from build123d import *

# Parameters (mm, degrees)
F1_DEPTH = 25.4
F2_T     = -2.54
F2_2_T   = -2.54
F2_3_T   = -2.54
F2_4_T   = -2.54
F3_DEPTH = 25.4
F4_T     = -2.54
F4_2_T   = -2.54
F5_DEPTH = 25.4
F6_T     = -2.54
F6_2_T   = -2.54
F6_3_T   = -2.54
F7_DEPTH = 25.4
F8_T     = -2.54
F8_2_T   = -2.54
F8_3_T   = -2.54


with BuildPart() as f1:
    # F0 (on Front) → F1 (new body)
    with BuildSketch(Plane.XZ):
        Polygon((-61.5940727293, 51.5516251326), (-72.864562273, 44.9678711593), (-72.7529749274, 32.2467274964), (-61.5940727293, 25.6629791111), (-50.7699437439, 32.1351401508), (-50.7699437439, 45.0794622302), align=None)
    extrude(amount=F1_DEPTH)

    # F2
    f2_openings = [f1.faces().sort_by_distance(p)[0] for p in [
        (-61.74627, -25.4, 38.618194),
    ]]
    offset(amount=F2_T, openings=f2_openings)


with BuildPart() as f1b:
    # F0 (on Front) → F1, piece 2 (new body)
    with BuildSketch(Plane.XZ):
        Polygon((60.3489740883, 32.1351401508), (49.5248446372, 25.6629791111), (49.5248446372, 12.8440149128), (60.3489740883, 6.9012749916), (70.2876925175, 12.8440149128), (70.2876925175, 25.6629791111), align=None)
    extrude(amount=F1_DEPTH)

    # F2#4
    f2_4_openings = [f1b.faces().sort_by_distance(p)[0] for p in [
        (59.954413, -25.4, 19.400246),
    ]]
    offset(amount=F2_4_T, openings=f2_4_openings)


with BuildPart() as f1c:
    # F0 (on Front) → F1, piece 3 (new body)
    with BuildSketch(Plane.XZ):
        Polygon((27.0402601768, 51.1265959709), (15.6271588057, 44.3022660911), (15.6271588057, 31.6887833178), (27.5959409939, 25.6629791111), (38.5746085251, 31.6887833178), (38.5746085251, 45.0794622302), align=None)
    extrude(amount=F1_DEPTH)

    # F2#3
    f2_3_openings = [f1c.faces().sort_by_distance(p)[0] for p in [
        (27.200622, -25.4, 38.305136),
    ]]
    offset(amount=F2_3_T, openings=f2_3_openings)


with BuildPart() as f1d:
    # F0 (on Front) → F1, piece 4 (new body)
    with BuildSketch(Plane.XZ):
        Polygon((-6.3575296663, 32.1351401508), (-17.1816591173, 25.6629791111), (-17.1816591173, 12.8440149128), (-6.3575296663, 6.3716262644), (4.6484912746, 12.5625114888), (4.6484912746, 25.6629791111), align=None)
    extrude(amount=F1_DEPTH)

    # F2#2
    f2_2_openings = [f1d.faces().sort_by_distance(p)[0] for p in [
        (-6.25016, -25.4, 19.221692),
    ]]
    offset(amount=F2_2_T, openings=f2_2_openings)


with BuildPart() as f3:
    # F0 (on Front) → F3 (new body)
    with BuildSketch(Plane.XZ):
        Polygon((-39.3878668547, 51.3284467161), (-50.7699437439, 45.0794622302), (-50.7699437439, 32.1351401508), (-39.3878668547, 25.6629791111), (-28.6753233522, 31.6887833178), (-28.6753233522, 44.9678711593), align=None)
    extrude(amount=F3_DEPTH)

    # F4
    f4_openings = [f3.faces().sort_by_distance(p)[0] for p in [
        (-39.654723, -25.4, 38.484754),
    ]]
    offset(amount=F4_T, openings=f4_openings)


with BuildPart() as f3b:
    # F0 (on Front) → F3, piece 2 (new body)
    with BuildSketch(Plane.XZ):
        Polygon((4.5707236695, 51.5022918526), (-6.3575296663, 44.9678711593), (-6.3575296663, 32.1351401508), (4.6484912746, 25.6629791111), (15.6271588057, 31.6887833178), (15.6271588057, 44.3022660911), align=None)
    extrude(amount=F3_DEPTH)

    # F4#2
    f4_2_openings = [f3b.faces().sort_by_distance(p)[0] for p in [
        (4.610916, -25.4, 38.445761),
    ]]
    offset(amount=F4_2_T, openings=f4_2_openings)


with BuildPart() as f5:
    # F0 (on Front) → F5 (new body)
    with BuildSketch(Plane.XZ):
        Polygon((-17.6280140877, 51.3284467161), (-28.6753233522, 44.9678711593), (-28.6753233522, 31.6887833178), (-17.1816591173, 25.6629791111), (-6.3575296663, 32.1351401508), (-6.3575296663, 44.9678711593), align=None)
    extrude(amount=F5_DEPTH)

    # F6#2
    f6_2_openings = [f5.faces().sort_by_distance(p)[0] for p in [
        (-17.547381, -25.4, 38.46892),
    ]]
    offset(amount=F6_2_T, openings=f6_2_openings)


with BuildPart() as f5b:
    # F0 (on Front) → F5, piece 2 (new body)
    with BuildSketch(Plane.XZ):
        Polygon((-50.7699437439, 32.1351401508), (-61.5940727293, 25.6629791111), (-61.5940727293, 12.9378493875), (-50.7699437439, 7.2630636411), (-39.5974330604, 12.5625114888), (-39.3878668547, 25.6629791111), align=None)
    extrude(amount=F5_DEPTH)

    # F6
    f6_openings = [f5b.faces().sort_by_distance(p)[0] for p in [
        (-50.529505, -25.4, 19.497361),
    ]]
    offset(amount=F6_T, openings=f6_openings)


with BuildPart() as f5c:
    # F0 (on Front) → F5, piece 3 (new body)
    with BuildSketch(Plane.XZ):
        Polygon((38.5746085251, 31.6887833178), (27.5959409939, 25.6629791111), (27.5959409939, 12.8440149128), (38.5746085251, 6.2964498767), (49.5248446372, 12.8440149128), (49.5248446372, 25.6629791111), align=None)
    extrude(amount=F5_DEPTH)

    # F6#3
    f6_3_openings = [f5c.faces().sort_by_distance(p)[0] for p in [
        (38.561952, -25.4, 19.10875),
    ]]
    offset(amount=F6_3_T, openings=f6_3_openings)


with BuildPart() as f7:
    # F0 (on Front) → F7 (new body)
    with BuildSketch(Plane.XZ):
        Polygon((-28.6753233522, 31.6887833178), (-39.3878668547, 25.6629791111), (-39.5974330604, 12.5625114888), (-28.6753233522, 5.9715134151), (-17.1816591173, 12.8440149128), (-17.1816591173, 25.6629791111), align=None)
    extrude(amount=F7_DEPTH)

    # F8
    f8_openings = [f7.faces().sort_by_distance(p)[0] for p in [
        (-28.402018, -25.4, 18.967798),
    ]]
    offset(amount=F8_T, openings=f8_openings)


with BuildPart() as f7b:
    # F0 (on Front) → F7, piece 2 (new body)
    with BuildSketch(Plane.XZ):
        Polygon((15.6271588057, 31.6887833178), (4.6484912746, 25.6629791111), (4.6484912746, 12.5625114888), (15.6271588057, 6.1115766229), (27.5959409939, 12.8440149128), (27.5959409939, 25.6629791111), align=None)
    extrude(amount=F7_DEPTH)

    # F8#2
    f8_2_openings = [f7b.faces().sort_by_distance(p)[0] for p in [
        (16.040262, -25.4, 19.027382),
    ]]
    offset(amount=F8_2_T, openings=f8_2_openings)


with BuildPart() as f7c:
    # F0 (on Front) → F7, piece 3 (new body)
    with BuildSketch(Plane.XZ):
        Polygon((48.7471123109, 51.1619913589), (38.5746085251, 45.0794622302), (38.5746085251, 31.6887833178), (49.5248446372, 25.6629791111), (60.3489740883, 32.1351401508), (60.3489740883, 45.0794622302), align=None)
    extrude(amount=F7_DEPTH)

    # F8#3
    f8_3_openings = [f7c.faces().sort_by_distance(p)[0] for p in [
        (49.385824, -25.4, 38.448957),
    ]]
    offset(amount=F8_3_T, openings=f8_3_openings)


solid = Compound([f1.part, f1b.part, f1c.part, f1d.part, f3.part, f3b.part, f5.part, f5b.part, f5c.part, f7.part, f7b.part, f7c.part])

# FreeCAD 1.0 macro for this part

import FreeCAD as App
import Part
import Sketcher
Q = App.Units.Quantity


def faces_at(feature, points):
    """Names of the faces that lie closest to the given points."""
    faces = feature.Shape.Faces
    near = lambda p: min(range(len(faces)), key=lambda i: faces[i].distToShape(Part.Vertex(*p))[0])
    return sorted({f"Face{near(p) + 1}" for p in points})


def add_polygon(sketch, points):
    """Adds a closed chain of lines whose ends are joined by coincident constraints."""
    first, n = sketch.GeometryCount, len(points)
    for a, b in zip(points, points[1:] + points[:1]):
        sketch.addGeometry(Part.LineSegment(App.Vector(*a, 0), App.Vector(*b, 0)), False)
    for i in range(n):
        sketch.addConstraint(Sketcher.Constraint("Coincident", first + i, 2, first + (i + 1) % n, 1))

doc = App.newDocument("Part")
body = doc.addObject("PartDesign::Body", "Body")

sketch1 = doc.addObject("Sketcher::SketchObject", "Sketch")
body.addObject(sketch1)
sketch1.AttachmentSupport = (doc.XZ_Plane, [""])
sketch1.MapMode = "FlatFace"
add_polygon(sketch1, [(-62, 52), (-73, 45), (-73, 32), (-62, 26), (-51, 32), (-51, 45)])
sketch1.addConstraint(Sketcher.Constraint("Vertical", 4))
sketch1.addConstraint(Sketcher.Constraint("Vertical", 2, 2, 5, 2))
sketch1.addConstraint(Sketcher.Constraint("Equal", 3, 5))
sketch1.addConstraint(Sketcher.Constraint("Distance", 5, 12.611529))
sketch1.addConstraint(Sketcher.Constraint("DistanceY", 4, 1, 4, 2, 12.944322))
sketch1.addConstraint(Sketcher.Constraint("DistanceY", -1, 1, 0, 2, 44.967871))
sketch1.addConstraint(Sketcher.Constraint("DistanceY", -1, 1, 2, 2, 25.662979))
sketch1.addConstraint(Sketcher.Constraint("DistanceY", -1, 1, 3, 2, 32.13514))
sketch1.addConstraint(Sketcher.Constraint("DistanceY", 2, 2, 1, 2, 6.583748))
sketch1.addConstraint(Sketcher.Constraint("DistanceX", 0, 2, 2, 2, 11.27049))
sketch1.addConstraint(Sketcher.Constraint("DistanceX", 1, 2, 3, 2, 21.983031))
sketch1.addConstraint(Sketcher.Constraint("DistanceX", 0, 2, -1, 1, 72.864562))
pad1 = doc.addObject("PartDesign::Pad", "Pad")
body.addObject(pad1)
pad1.Profile = sketch1
pad1.Length = Q("1 in")
doc.recompute()

thickness = doc.addObject("PartDesign::Thickness", "Thickness")
body.addObject(thickness)
thickness.Base = (pad1, faces_at(pad1, [(-61.817, -25.4, 38.607)]))
thickness.Value = Q("0.1 in")
thickness.Reversed = True
thickness.Join = "Arc"
body2 = doc.addObject("PartDesign::Body", "Body001")

sketch2 = doc.addObject("Sketcher::SketchObject", "Sketch001")
body2.addObject(sketch2)
sketch2.AttachmentSupport = (doc.getObject("XZ_Plane001"), [""])
sketch2.MapMode = "FlatFace"
add_polygon(sketch2, [(60, 32), (50, 26), (50, 13), (60, 7), (70, 13), (70, 26)])
sketch2.addConstraint(Sketcher.Constraint("Vertical", 1))
sketch2.addConstraint(Sketcher.Constraint("Vertical", 4))
sketch2.addConstraint(Sketcher.Constraint("Parallel", 0, 3))
sketch2.addConstraint(Sketcher.Constraint("Horizontal", 1, 2, 3, 2))
sketch2.addConstraint(Sketcher.Constraint("Horizontal", 0, 2, 4, 2))
sketch2.addConstraint(Sketcher.Constraint("Vertical", 2, 2, 5, 2))
sketch2.addConstraint(Sketcher.Constraint("Distance", 0, 12.611528))
sketch2.addConstraint(Sketcher.Constraint("Distance", 3, 11.579909))
sketch2.addConstraint(Sketcher.Constraint("Distance", 5, 11.860312))
sketch2.addConstraint(Sketcher.Constraint("DistanceY", 1, 2, 1, 1, 12.818964))
sketch2.addConstraint(Sketcher.Constraint("DistanceY", -1, 1, 0, 2, 25.662979))
sketch2.addConstraint(Sketcher.Constraint("DistanceX", -1, 1, 0, 2, 49.524845))
pad2 = doc.addObject("PartDesign::Pad", "Pad001")
body2.addObject(pad2)
pad2.Profile = sketch2
pad2.Length = Q("1 in")
doc.recompute()

thickness2 = doc.addObject("PartDesign::Thickness", "Thickness001")
body2.addObject(thickness2)
thickness2.Base = (pad2, faces_at(pad2, [(59.906, -25.4, 19.518)]))
thickness2.Value = Q("0.1 in")
thickness2.Reversed = True
thickness2.Join = "Arc"
body3 = doc.addObject("PartDesign::Body", "Body002")

sketch3 = doc.addObject("Sketcher::SketchObject", "Sketch002")
body3.addObject(sketch3)
sketch3.AttachmentSupport = (doc.getObject("XZ_Plane002"), [""])
sketch3.MapMode = "FlatFace"
add_polygon(sketch3, [(27, 51), (16, 44), (16, 32), (28, 26), (39, 32), (39, 45)])
sketch3.addConstraint(Sketcher.Constraint("Vertical", 1))
sketch3.addConstraint(Sketcher.Constraint("Vertical", 4))
sketch3.addConstraint(Sketcher.Constraint("Horizontal", 1, 2, 3, 2))
sketch3.addConstraint(Sketcher.Constraint("DistanceY", 4, 1, 4, 2, 13.390679))
sketch3.addConstraint(Sketcher.Constraint("DistanceX", 0, 2, 5, 2, 11.413101))
sketch3.addConstraint(Sketcher.Constraint("DistanceY", 1, 2, 1, 1, 12.613483))
sketch3.addConstraint(Sketcher.Constraint("DistanceX", -1, 1, 0, 2, 15.627159))
sketch3.addConstraint(Sketcher.Constraint("DistanceX", -1, 1, 2, 2, 27.595941))
sketch3.addConstraint(Sketcher.Constraint("DistanceY", -1, 1, 2, 2, 25.662979))
sketch3.addConstraint(Sketcher.Constraint("DistanceX", -1, 1, 3, 2, 38.574609))
sketch3.addConstraint(Sketcher.Constraint("DistanceY", 0, 2, 5, 2, 6.82433))
sketch3.addConstraint(Sketcher.Constraint("Distance", 2, 13.400077))
pad3 = doc.addObject("PartDesign::Pad", "Pad002")
body3.addObject(pad3)
pad3.Profile = sketch3
pad3.Length = Q("1 in")
doc.recompute()

thickness3 = doc.addObject("PartDesign::Thickness", "Thickness002")
body3.addObject(thickness3)
thickness3.Base = (pad3, faces_at(pad3, [(27.101, -25.4, 38.395)]))
thickness3.Value = Q("0.1 in")
thickness3.Reversed = True
thickness3.Join = "Arc"
body4 = doc.addObject("PartDesign::Body", "Body003")

sketch4 = doc.addObject("Sketcher::SketchObject", "Sketch003")
body4.addObject(sketch4)
sketch4.AttachmentSupport = (doc.getObject("XZ_Plane003"), [""])
sketch4.MapMode = "FlatFace"
add_polygon(sketch4, [(-6, 32), (-17, 26), (-17, 13), (-6, 6), (5, 13), (5, 26)])
sketch4.addConstraint(Sketcher.Constraint("Vertical", 1))
sketch4.addConstraint(Sketcher.Constraint("Vertical", 4))
sketch4.addConstraint(Sketcher.Constraint("Horizontal", 0, 2, 4, 2))
sketch4.addConstraint(Sketcher.Constraint("Vertical", 2, 2, 5, 2))
sketch4.addConstraint(Sketcher.Constraint("Distance", 0, 12.611528))
sketch4.addConstraint(Sketcher.Constraint("Distance", 3, 12.62773))
sketch4.addConstraint(Sketcher.Constraint("DistanceY", 1, 2, 1, 1, 12.818964))
sketch4.addConstraint(Sketcher.Constraint("DistanceY", 4, 1, 4, 2, 13.100468))
sketch4.addConstraint(Sketcher.Constraint("DistanceX", 0, 2, -1, 1, 17.181659))
sketch4.addConstraint(Sketcher.Constraint("DistanceY", -1, 1, 0, 2, 25.662979))
sketch4.addConstraint(Sketcher.Constraint("DistanceX", 2, 2, -1, 1, 6.35753))
sketch4.addConstraint(Sketcher.Constraint("DistanceX", -1, 1, 3, 2, 4.648491))
pad4 = doc.addObject("PartDesign::Pad", "Pad003")
body4.addObject(pad4)
pad4.Profile = sketch4
pad4.Length = Q("1 in")
doc.recompute()

thickness4 = doc.addObject("PartDesign::Thickness", "Thickness003")
body4.addObject(thickness4)
thickness4.Base = (pad4, faces_at(pad4, [(-6.267, -25.4, 19.253)]))
thickness4.Value = Q("0.1 in")
thickness4.Reversed = True
thickness4.Join = "Arc"
body5 = doc.addObject("PartDesign::Body", "Body004")

sketch5 = doc.addObject("Sketcher::SketchObject", "Sketch004")
body5.addObject(sketch5)
sketch5.AttachmentSupport = (doc.getObject("XZ_Plane004"), [""])
sketch5.MapMode = "FlatFace"
add_polygon(sketch5, [(-39, 51), (-51, 45), (-51, 32), (-39, 26), (-29, 32), (-29, 45)])
sketch5.addConstraint(Sketcher.Constraint("Vertical", 1))
sketch5.addConstraint(Sketcher.Constraint("Vertical", 4))
sketch5.addConstraint(Sketcher.Constraint("Vertical", 2, 2, 5, 2))
sketch5.addConstraint(Sketcher.Constraint("Distance", 2, 13.093531))
sketch5.addConstraint(Sketcher.Constraint("Distance", 3, 12.291009))
sketch5.addConstraint(Sketcher.Constraint("Distance", 5, 12.458552))
sketch5.addConstraint(Sketcher.Constraint("DistanceY", 1, 2, 1, 1, 12.944322))
sketch5.addConstraint(Sketcher.Constraint("DistanceY", 4, 1, 4, 2, 13.279088))
sketch5.addConstraint(Sketcher.Constraint("DistanceY", -1, 1, 1, 2, 32.13514))
sketch5.addConstraint(Sketcher.Constraint("DistanceY", -1, 1, 2, 2, 25.662979))
sketch5.addConstraint(Sketcher.Constraint("DistanceY", -1, 1, 4, 2, 44.967871))
sketch5.addConstraint(Sketcher.Constraint("DistanceX", 0, 2, -1, 1, 50.769944))
pad5 = doc.addObject("PartDesign::Pad", "Pad004")
body5.addObject(pad5)
pad5.Profile = sketch5
pad5.Length = Q("1 in")
doc.recompute()

thickness5 = doc.addObject("PartDesign::Thickness", "Thickness004")
body5.addObject(thickness5)
thickness5.Base = (pad5, faces_at(pad5, [(-39.723, -25.4, 38.496)]))
thickness5.Value = Q("0.1 in")
thickness5.Reversed = True
thickness5.Join = "Arc"
body6 = doc.addObject("PartDesign::Body", "Body005")

sketch6 = doc.addObject("Sketcher::SketchObject", "Sketch005")
body6.addObject(sketch6)
sketch6.AttachmentSupport = (doc.getObject("XZ_Plane005"), [""])
sketch6.MapMode = "FlatFace"
add_polygon(sketch6, [(5, 52), (-6, 45), (-6, 32), (5, 26), (16, 32), (16, 44)])
sketch6.addConstraint(Sketcher.Constraint("Vertical", 1))
sketch6.addConstraint(Sketcher.Constraint("Vertical", 4))
sketch6.addConstraint(Sketcher.Constraint("DistanceY", 1, 2, 1, 1, 12.832731))
sketch6.addConstraint(Sketcher.Constraint("DistanceY", 4, 1, 4, 2, 12.613483))
sketch6.addConstraint(Sketcher.Constraint("DistanceX", 0, 2, -1, 1, 6.35753))
sketch6.addConstraint(Sketcher.Constraint("DistanceY", -1, 1, 0, 2, 44.967871))
sketch6.addConstraint(Sketcher.Constraint("DistanceX", -1, 1, 2, 2, 4.648491))
sketch6.addConstraint(Sketcher.Constraint("DistanceY", -1, 1, 2, 2, 25.662979))
sketch6.addConstraint(Sketcher.Constraint("DistanceX", -1, 1, 3, 2, 15.627159))
sketch6.addConstraint(Sketcher.Constraint("DistanceY", -1, 1, 5, 2, 51.502292))
sketch6.addConstraint(Sketcher.Constraint("DistanceY", 3, 2, 5, 2, 19.813509))
sketch6.addConstraint(Sketcher.Constraint("Distance", 0, 12.732846))
pad6 = doc.addObject("PartDesign::Pad", "Pad005")
body6.addObject(pad6)
pad6.Profile = sketch6
pad6.Length = Q("1 in")
doc.recompute()

thickness6 = doc.addObject("PartDesign::Thickness", "Thickness005")
body6.addObject(thickness6)
thickness6.Base = (pad6, faces_at(pad6, [(4.635, -25.4, 38.583)]))
thickness6.Value = Q("0.1 in")
thickness6.Reversed = True
thickness6.Join = "Arc"
body7 = doc.addObject("PartDesign::Body", "Body006")

sketch7 = doc.addObject("Sketcher::SketchObject", "Sketch006")
body7.addObject(sketch7)
sketch7.AttachmentSupport = (doc.getObject("XZ_Plane006"), [""])
sketch7.MapMode = "FlatFace"
add_polygon(sketch7, [(-18, 51), (-29, 45), (-29, 32), (-17, 26), (-6, 32), (-6, 45)])
sketch7.addConstraint(Sketcher.Constraint("Vertical", 1))
sketch7.addConstraint(Sketcher.Constraint("Vertical", 4))
sketch7.addConstraint(Sketcher.Constraint("Horizontal", 0, 2, 4, 2))
sketch7.addConstraint(Sketcher.Constraint("DistanceY", 4, 1, 4, 2, 12.832731))
sketch7.addConstraint(Sketcher.Constraint("Distance", 3, 12.611528))
sketch7.addConstraint(Sketcher.Constraint("DistanceY", 1, 2, 1, 1, 13.279088))
sketch7.addConstraint(Sketcher.Constraint("DistanceY", -1, 1, 0, 2, 44.967871))
sketch7.addConstraint(Sketcher.Constraint("DistanceX", 2, 2, -1, 1, 17.181659))
sketch7.addConstraint(Sketcher.Constraint("DistanceY", -1, 1, 2, 2, 25.662979))
sketch7.addConstraint(Sketcher.Constraint("DistanceX", 0, 2, 5, 2, 11.047309))
sketch7.addConstraint(Sketcher.Constraint("Distance", 0, 12.747547))
sketch7.addConstraint(Sketcher.Constraint("Distance", 2, 12.977466))
pad7 = doc.addObject("PartDesign::Pad", "Pad006")
body7.addObject(pad7)
pad7.Profile = sketch7
pad7.Length = Q("1 in")
doc.recompute()

thickness7 = doc.addObject("PartDesign::Thickness", "Thickness006")
body7.addObject(thickness7)
thickness7.Base = (pad7, faces_at(pad7, [(-17.516, -25.4, 38.496)]))
thickness7.Value = Q("0.1 in")
thickness7.Reversed = True
thickness7.Join = "Arc"
body8 = doc.addObject("PartDesign::Body", "Body007")

sketch8 = doc.addObject("Sketcher::SketchObject", "Sketch007")
body8.addObject(sketch8)
sketch8.AttachmentSupport = (doc.getObject("XZ_Plane007"), [""])
sketch8.MapMode = "FlatFace"
add_polygon(sketch8, [(-51, 32), (-62, 26), (-62, 13), (-51, 7), (-40, 13), (-39, 26)])
sketch8.addConstraint(Sketcher.Constraint("Vertical", 1))
sketch8.addConstraint(Sketcher.Constraint("Horizontal", 0, 2, 4, 2))
sketch8.addConstraint(Sketcher.Constraint("Vertical", 2, 2, 5, 2))
sketch8.addConstraint(Sketcher.Constraint("DistanceY", 1, 2, 1, 1, 12.72513))
sketch8.addConstraint(Sketcher.Constraint("Distance", 5, 13.093531))
sketch8.addConstraint(Sketcher.Constraint("DistanceY", -1, 1, 0, 2, 25.662979))
sketch8.addConstraint(Sketcher.Constraint("DistanceY", -1, 1, 3, 2, 12.562511))
sketch8.addConstraint(Sketcher.Constraint("DistanceY", -1, 1, 5, 2, 32.13514))
sketch8.addConstraint(Sketcher.Constraint("DistanceX", 1, 2, 2, 2, 10.824129))
sketch8.addConstraint(Sketcher.Constraint("DistanceX", 2, 2, 3, 2, 11.172511))
sketch8.addConstraint(Sketcher.Constraint("Distance", 2, 12.221496))
sketch8.addConstraint(Sketcher.Constraint("DistanceX", 0, 2, -1, 1, 61.594073))
pad8 = doc.addObject("PartDesign::Pad", "Pad007")
body8.addObject(pad8)
pad8.Profile = sketch8
pad8.Length = Q("1 in")
doc.recompute()

thickness8 = doc.addObject("PartDesign::Thickness", "Thickness007")
body8.addObject(thickness8)
thickness8.Base = (pad8, faces_at(pad8, [(-50.491, -25.4, 19.699)]))
thickness8.Value = Q("0.1 in")
thickness8.Reversed = True
thickness8.Join = "Arc"
body9 = doc.addObject("PartDesign::Body", "Body008")

sketch9 = doc.addObject("Sketcher::SketchObject", "Sketch008")
body9.addObject(sketch9)
sketch9.AttachmentSupport = (doc.getObject("XZ_Plane008"), [""])
sketch9.MapMode = "FlatFace"
add_polygon(sketch9, [(39, 32), (28, 26), (28, 13), (39, 6), (50, 13), (50, 26)])
sketch9.addConstraint(Sketcher.Constraint("Vertical", 1))
sketch9.addConstraint(Sketcher.Constraint("Vertical", 4))
sketch9.addConstraint(Sketcher.Constraint("Horizontal", 1, 2, 3, 2))
sketch9.addConstraint(Sketcher.Constraint("Horizontal", 0, 2, 4, 2))
sketch9.addConstraint(Sketcher.Constraint("Vertical", 2, 2, 5, 2))
sketch9.addConstraint(Sketcher.Constraint("Distance", 2, 12.782869))
sketch9.addConstraint(Sketcher.Constraint("Distance", 3, 12.758459))
sketch9.addConstraint(Sketcher.Constraint("Distance", 5, 12.498719))
sketch9.addConstraint(Sketcher.Constraint("DistanceY", 1, 2, 1, 1, 12.818964))
sketch9.addConstraint(Sketcher.Constraint("DistanceX", -1, 1, 0, 2, 27.595941))
sketch9.addConstraint(Sketcher.Constraint("DistanceY", -1, 1, 0, 2, 25.662979))
sketch9.addConstraint(Sketcher.Constraint("DistanceX", -1, 1, 2, 2, 38.574609))
pad9 = doc.addObject("PartDesign::Pad", "Pad008")
body9.addObject(pad9)
pad9.Profile = sketch9
pad9.Length = Q("1 in")
doc.recompute()

thickness9 = doc.addObject("PartDesign::Thickness", "Thickness008")
body9.addObject(thickness9)
thickness9.Base = (pad9, faces_at(pad9, [(38.56, -25.4, 18.993)]))
thickness9.Value = Q("0.1 in")
thickness9.Reversed = True
thickness9.Join = "Arc"
body10 = doc.addObject("PartDesign::Body", "Body009")

sketch10 = doc.addObject("Sketcher::SketchObject", "Sketch009")
body10.addObject(sketch10)
sketch10.AttachmentSupport = (doc.getObject("XZ_Plane009"), [""])
sketch10.MapMode = "FlatFace"
add_polygon(sketch10, [(-29, 32), (-39, 26), (-40, 13), (-29, 6), (-17, 13), (-17, 26)])
sketch10.addConstraint(Sketcher.Constraint("Vertical", 4))
sketch10.addConstraint(Sketcher.Constraint("Horizontal", 0, 2, 4, 2))
sketch10.addConstraint(Sketcher.Constraint("Vertical", 2, 2, 5, 2))
sketch10.addConstraint(Sketcher.Constraint("DistanceY", 2, 2, 1, 2, 6.590998))
sketch10.addConstraint(Sketcher.Constraint("DistanceY", 2, 2, 3, 2, 6.872501))
sketch10.addConstraint(Sketcher.Constraint("Distance", 0, 12.291009))
sketch10.addConstraint(Sketcher.Constraint("DistanceY", 4, 1, 4, 2, 12.818964))
sketch10.addConstraint(Sketcher.Constraint("DistanceY", -1, 1, 0, 2, 25.662979))
sketch10.addConstraint(Sketcher.Constraint("DistanceX", 3, 2, -1, 1, 17.181659))
sketch10.addConstraint(Sketcher.Constraint("DistanceX", 1, 2, 2, 2, 10.92211))
sketch10.addConstraint(Sketcher.Constraint("DistanceY", 1, 2, 5, 2, 19.126272))
sketch10.addConstraint(Sketcher.Constraint("Distance", 3, 13.391624))
pad10 = doc.addObject("PartDesign::Pad", "Pad009")
body10.addObject(pad10)
pad10.Profile = sketch10
pad10.Length = Q("1 in")
doc.recompute()

thickness10 = doc.addObject("PartDesign::Thickness", "Thickness009")
body10.addObject(thickness10)
thickness10.Base = (pad10, faces_at(pad10, [(-28.39, -25.4, 18.83)]))
thickness10.Value = Q("0.1 in")
thickness10.Reversed = True
thickness10.Join = "Arc"
body11 = doc.addObject("PartDesign::Body", "Body010")

sketch11 = doc.addObject("Sketcher::SketchObject", "Sketch010")
body11.addObject(sketch11)
sketch11.AttachmentSupport = (doc.getObject("XZ_Plane010"), [""])
sketch11.MapMode = "FlatFace"
add_polygon(sketch11, [(16, 32), (5, 26), (5, 13), (16, 6), (28, 13), (28, 26)])
sketch11.addConstraint(Sketcher.Constraint("Vertical", 1))
sketch11.addConstraint(Sketcher.Constraint("Vertical", 4))
sketch11.addConstraint(Sketcher.Constraint("Horizontal", 0, 2, 4, 2))
sketch11.addConstraint(Sketcher.Constraint("Vertical", 2, 2, 5, 2))
sketch11.addConstraint(Sketcher.Constraint("Distance", 3, 13.732351))
sketch11.addConstraint(Sketcher.Constraint("DistanceY", 1, 2, 1, 1, 13.100468))
sketch11.addConstraint(Sketcher.Constraint("DistanceY", 4, 1, 4, 2, 12.818964))
sketch11.addConstraint(Sketcher.Constraint("DistanceX", -1, 1, 0, 2, 4.648491))
sketch11.addConstraint(Sketcher.Constraint("DistanceY", -1, 1, 0, 2, 25.662979))
sketch11.addConstraint(Sketcher.Constraint("DistanceX", -1, 1, 2, 2, 15.627159))
sketch11.addConstraint(Sketcher.Constraint("DistanceX", -1, 1, 3, 2, 27.595941))
sketch11.addConstraint(Sketcher.Constraint("DistanceY", 1, 2, 5, 2, 19.126272))
pad11 = doc.addObject("PartDesign::Pad", "Pad010")
body11.addObject(pad11)
pad11.Profile = sketch11
pad11.Length = Q("1 in")
doc.recompute()

thickness11 = doc.addObject("PartDesign::Thickness", "Thickness010")
body11.addObject(thickness11)
thickness11.Base = (pad11, faces_at(pad11, [(16.122, -25.4, 18.9)]))
thickness11.Value = Q("0.1 in")
thickness11.Reversed = True
thickness11.Join = "Arc"
body12 = doc.addObject("PartDesign::Body", "Body011")

sketch12 = doc.addObject("Sketcher::SketchObject", "Sketch011")
body12.addObject(sketch12)
sketch12.AttachmentSupport = (doc.getObject("XZ_Plane011"), [""])
sketch12.MapMode = "FlatFace"
add_polygon(sketch12, [(49, 51), (39, 45), (39, 32), (50, 26), (60, 32), (60, 45)])
sketch12.addConstraint(Sketcher.Constraint("Vertical", 1))
sketch12.addConstraint(Sketcher.Constraint("Vertical", 4))
sketch12.addConstraint(Sketcher.Constraint("Parallel", 0, 3))
sketch12.addConstraint(Sketcher.Constraint("Horizontal", 0, 2, 4, 2))
sketch12.addConstraint(Sketcher.Constraint("Distance", 0, 11.852299))
sketch12.addConstraint(Sketcher.Constraint("DistanceY", 1, 2, 1, 1, 13.390679))
sketch12.addConstraint(Sketcher.Constraint("Distance", 2, 12.498719))
sketch12.addConstraint(Sketcher.Constraint("Distance", 3, 12.611528))
sketch12.addConstraint(Sketcher.Constraint("Distance", 5, 13.099632))
sketch12.addConstraint(Sketcher.Constraint("DistanceY", 4, 1, 4, 2, 12.944322))
sketch12.addConstraint(Sketcher.Constraint("DistanceX", -1, 1, 0, 2, 38.574609))
sketch12.addConstraint(Sketcher.Constraint("DistanceY", -1, 1, 2, 2, 25.662979))
pad12 = doc.addObject("PartDesign::Pad", "Pad011")
body12.addObject(pad12)
pad12.Profile = sketch12
pad12.Length = Q("1 in")
doc.recompute()

thickness12 = doc.addObject("PartDesign::Thickness", "Thickness011")
body12.addObject(thickness12)
thickness12.Base = (pad12, faces_at(pad12, [(49.462, -25.4, 38.412)]))
thickness12.Value = Q("0.1 in")
thickness12.Reversed = True
thickness12.Join = "Arc"

doc.recompute()
